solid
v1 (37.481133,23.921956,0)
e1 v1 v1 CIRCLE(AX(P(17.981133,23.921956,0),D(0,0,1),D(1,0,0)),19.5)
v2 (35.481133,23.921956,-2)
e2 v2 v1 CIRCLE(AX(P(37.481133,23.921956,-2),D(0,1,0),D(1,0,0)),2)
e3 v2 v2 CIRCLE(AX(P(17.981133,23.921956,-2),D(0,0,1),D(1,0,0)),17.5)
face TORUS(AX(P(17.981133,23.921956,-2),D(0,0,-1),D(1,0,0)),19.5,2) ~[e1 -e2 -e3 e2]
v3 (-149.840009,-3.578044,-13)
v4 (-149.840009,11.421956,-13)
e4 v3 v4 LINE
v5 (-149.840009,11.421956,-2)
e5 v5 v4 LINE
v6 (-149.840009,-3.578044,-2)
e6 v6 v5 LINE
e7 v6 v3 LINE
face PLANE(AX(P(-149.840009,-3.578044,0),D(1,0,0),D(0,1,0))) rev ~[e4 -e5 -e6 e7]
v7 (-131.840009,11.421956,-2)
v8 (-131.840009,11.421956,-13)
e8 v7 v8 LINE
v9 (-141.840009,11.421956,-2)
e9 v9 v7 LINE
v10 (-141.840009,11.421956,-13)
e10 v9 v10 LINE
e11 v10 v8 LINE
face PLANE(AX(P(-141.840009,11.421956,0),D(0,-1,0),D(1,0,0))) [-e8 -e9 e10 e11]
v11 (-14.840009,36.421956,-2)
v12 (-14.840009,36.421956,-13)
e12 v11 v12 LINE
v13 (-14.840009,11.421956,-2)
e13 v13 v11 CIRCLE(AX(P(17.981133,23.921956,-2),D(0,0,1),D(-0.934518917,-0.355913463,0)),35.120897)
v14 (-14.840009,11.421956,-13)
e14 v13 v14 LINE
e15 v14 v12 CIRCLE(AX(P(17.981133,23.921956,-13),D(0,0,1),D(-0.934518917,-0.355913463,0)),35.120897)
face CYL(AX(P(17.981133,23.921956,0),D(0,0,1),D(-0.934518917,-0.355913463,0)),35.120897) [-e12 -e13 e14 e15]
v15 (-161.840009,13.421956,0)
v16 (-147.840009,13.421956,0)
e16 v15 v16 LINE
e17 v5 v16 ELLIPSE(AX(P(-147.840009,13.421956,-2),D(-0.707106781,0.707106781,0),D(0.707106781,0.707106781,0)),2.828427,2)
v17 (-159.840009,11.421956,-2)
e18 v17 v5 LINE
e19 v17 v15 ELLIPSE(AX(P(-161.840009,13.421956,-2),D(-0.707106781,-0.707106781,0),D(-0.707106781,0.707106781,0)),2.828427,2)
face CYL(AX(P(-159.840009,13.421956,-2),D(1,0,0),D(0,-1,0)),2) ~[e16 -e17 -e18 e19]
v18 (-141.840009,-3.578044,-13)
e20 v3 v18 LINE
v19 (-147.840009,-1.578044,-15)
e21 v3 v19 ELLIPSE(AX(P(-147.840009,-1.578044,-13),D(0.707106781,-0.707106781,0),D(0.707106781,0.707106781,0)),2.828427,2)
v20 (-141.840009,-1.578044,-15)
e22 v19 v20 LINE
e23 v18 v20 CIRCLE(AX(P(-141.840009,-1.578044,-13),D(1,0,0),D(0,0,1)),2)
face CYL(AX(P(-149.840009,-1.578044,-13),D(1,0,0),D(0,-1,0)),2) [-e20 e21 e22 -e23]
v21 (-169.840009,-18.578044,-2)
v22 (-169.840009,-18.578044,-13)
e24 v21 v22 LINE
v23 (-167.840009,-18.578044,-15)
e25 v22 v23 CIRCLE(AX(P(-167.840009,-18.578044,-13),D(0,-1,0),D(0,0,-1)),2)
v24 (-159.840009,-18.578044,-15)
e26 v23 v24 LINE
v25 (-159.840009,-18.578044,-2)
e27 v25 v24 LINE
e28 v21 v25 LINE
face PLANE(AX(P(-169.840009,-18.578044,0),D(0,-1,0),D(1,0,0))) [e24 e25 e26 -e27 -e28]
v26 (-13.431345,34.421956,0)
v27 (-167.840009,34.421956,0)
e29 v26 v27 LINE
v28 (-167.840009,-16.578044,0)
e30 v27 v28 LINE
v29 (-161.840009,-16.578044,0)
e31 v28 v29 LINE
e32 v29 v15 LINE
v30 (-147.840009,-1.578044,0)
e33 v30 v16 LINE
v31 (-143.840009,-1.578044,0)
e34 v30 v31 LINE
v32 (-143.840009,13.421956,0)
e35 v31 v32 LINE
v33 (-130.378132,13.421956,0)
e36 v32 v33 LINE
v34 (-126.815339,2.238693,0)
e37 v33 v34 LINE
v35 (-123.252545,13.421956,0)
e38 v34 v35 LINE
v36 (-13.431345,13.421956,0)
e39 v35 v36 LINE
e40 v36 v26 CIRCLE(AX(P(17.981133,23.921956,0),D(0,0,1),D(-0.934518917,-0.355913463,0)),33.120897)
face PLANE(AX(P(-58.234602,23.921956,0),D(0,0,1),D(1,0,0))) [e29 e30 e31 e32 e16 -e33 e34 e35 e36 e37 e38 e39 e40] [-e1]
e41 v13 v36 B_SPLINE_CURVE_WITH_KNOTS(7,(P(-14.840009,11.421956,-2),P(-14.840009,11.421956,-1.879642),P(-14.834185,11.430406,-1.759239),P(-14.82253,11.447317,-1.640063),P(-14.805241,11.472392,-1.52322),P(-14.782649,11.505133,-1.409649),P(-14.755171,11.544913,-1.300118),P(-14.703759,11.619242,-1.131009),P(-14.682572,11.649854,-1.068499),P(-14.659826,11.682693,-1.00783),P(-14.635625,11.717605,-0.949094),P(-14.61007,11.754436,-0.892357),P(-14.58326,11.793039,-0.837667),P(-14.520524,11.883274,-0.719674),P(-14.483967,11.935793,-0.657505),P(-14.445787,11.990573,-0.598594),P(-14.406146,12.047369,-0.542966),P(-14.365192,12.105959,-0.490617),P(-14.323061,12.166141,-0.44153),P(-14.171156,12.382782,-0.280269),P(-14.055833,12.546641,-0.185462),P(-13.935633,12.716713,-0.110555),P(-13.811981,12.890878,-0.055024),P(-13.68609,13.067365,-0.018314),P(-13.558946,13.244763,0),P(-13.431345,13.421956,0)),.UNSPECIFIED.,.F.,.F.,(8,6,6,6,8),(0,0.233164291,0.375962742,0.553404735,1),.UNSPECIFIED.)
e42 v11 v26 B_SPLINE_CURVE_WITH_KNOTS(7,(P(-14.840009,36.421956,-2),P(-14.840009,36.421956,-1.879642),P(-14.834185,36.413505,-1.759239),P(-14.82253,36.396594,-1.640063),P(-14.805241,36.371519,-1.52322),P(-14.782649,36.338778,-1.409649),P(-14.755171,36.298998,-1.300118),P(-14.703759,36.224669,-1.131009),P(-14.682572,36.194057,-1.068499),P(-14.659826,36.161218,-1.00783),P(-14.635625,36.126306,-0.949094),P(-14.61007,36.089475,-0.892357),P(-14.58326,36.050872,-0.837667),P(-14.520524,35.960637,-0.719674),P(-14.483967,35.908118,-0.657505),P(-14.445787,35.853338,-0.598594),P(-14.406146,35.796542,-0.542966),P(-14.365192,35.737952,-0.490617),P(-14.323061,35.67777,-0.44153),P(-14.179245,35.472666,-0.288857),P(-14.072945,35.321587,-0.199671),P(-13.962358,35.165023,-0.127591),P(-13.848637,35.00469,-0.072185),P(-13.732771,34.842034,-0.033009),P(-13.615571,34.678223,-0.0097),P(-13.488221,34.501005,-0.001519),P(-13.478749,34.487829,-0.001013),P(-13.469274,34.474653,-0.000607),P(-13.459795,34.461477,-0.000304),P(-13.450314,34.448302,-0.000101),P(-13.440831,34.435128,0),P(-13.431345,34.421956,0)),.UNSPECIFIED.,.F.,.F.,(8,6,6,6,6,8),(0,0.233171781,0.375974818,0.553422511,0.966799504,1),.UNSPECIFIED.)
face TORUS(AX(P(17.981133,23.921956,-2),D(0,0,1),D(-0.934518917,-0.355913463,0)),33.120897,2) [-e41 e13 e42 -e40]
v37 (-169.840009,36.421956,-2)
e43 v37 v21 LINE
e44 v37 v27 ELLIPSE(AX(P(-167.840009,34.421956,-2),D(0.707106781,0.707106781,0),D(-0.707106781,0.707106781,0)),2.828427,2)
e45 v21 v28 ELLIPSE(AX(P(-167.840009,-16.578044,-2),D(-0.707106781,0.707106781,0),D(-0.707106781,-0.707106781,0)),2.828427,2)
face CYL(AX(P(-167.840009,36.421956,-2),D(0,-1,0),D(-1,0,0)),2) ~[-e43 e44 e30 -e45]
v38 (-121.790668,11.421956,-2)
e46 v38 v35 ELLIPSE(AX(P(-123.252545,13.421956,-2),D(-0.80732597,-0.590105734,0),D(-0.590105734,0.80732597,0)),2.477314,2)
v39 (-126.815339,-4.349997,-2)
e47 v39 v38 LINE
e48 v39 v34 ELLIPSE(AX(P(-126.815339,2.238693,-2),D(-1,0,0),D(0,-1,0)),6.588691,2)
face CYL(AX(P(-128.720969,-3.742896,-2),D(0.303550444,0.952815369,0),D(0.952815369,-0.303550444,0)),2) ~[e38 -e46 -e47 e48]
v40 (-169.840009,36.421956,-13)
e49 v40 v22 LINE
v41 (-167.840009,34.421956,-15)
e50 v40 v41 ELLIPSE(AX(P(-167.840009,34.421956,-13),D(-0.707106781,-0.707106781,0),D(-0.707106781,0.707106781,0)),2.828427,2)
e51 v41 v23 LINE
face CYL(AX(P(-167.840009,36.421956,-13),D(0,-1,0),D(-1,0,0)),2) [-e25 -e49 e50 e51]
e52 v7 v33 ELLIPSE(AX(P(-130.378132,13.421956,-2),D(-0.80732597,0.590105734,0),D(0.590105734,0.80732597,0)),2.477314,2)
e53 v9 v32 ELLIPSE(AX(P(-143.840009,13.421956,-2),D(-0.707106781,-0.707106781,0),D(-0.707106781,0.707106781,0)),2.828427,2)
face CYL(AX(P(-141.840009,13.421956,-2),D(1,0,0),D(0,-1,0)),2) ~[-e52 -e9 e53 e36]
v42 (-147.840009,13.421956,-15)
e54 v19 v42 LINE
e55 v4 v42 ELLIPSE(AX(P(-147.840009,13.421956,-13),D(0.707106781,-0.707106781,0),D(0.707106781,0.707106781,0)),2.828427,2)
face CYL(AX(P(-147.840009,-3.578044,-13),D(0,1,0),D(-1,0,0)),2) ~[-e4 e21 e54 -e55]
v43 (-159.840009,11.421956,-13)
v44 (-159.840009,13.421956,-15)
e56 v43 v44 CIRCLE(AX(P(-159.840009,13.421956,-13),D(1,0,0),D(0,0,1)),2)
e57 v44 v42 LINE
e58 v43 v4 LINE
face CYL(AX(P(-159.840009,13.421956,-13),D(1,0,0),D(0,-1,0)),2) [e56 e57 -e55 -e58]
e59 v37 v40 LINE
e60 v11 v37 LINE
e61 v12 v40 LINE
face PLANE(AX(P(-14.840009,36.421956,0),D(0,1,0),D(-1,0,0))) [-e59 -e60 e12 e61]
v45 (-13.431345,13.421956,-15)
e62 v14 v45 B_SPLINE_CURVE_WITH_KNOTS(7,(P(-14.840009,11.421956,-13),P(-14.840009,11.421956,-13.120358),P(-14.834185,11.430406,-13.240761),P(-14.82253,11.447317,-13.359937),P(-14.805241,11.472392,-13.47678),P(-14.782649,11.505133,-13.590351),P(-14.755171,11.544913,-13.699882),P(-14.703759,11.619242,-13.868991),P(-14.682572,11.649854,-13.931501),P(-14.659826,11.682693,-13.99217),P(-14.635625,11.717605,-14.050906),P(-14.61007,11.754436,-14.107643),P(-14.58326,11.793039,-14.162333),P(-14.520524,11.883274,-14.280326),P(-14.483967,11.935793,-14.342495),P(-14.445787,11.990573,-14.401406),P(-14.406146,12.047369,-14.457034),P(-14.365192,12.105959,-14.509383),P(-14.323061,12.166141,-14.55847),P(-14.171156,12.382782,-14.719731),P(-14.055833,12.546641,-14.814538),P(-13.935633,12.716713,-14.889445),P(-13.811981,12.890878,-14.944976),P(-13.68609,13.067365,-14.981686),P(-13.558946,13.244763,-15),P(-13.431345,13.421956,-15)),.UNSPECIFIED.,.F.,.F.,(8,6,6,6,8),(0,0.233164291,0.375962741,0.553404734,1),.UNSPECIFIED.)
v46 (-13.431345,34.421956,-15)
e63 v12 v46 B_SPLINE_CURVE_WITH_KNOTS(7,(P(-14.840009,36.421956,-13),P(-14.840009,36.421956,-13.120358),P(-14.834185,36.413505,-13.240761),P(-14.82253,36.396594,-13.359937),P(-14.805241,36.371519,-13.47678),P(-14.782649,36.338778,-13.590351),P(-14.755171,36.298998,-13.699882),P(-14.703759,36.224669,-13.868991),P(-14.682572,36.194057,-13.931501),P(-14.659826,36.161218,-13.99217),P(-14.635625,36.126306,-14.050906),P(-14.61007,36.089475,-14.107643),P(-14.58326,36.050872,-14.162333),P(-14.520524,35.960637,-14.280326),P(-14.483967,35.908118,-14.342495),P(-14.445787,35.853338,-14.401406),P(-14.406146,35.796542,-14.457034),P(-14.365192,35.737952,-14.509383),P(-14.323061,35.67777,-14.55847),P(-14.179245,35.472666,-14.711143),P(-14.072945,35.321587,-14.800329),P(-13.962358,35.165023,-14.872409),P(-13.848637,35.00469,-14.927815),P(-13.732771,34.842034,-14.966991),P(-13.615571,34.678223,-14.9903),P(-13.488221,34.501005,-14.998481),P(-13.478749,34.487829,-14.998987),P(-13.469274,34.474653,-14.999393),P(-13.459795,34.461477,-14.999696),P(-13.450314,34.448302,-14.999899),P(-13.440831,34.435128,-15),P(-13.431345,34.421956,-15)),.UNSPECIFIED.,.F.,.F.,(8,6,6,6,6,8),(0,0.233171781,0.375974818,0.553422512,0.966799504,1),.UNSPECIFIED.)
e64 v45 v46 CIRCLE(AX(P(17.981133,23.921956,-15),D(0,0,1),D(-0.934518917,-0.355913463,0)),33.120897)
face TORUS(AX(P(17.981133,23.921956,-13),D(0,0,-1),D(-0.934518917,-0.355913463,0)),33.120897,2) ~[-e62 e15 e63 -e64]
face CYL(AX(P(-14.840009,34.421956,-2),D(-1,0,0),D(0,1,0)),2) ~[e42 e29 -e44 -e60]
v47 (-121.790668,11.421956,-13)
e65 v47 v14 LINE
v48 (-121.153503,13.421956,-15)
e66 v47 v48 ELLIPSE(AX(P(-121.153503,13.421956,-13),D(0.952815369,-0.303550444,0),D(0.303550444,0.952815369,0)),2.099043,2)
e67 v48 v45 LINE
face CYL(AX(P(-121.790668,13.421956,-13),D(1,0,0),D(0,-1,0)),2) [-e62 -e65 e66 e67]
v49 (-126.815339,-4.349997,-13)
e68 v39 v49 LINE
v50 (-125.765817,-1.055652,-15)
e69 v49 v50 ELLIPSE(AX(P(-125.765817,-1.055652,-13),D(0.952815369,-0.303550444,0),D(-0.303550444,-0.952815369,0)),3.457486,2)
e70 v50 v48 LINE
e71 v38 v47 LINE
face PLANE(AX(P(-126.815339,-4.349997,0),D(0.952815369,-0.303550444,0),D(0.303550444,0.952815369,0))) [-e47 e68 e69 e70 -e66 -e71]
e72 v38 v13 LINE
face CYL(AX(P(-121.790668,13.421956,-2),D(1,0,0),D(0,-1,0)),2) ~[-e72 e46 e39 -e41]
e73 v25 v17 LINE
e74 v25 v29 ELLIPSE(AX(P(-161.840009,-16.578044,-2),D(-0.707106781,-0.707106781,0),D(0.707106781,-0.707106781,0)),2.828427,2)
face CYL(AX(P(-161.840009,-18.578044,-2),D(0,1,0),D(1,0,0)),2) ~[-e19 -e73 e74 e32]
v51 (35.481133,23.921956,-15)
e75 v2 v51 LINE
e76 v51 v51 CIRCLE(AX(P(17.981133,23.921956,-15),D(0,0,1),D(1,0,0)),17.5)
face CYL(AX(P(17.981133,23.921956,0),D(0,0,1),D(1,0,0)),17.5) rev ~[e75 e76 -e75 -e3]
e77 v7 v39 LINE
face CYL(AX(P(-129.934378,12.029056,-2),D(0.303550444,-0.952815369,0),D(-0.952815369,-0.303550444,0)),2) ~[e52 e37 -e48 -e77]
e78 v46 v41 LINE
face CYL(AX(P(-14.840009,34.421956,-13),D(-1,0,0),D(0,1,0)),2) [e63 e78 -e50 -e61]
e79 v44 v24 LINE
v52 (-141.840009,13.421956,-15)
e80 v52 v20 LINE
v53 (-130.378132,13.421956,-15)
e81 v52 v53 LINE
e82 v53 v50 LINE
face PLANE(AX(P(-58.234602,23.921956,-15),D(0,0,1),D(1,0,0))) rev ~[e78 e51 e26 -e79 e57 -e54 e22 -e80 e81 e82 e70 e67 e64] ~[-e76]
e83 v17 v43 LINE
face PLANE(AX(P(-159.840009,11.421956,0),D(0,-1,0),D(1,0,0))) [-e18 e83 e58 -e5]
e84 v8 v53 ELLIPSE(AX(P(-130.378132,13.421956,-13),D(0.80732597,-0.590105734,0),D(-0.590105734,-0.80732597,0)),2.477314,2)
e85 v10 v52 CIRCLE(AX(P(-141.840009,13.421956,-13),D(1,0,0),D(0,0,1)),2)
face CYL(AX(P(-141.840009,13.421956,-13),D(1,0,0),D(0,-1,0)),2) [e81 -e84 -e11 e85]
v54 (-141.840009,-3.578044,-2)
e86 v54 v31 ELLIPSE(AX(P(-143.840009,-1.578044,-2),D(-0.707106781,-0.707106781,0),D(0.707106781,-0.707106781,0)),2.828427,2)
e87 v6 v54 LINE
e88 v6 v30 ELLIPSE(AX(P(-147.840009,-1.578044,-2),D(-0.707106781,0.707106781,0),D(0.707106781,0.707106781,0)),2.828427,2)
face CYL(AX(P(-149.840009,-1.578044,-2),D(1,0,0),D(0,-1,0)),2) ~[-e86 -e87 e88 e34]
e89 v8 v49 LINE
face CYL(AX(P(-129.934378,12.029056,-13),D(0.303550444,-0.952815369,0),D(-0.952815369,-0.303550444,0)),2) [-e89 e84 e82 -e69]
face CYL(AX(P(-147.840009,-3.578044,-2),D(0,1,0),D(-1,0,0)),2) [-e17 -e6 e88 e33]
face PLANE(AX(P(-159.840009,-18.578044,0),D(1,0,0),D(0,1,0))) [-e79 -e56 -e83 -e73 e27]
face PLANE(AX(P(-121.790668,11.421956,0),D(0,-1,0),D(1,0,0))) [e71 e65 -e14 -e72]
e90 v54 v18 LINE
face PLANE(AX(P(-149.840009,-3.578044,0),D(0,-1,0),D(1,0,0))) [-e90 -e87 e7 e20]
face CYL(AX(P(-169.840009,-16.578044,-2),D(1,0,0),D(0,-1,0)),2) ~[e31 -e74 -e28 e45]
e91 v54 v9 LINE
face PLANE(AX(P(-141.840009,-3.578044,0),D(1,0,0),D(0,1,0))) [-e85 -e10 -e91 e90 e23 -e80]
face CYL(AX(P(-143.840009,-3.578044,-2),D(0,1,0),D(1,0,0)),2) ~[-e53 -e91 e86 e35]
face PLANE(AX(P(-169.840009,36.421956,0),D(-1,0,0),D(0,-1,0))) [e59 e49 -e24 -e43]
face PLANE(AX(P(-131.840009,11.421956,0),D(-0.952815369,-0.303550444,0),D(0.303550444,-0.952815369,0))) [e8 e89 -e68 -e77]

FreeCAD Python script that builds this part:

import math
import FreeCAD as App
import Part
import Sketcher


def edges_at(feature, points):
    """Names of the edges that pass closest to the given points."""
    edges = feature.Shape.Edges
    near = lambda p: min(range(len(edges)), key=lambda i: edges[i].distToShape(Part.Vertex(*p))[0])
    return sorted({f"Edge{near(p) + 1}" for p in points})

doc = App.newDocument("Part")
body = doc.addObject("PartDesign::Body", "Body")

# Sketch on XY plane
sketch1 = doc.addObject("Sketcher::SketchObject", "Sketch")
body.addObject(sketch1)
sketch1.AttachmentSupport = (doc.XY_Plane, [""])
sketch1.MapMode = "FlatFace"
sketch1.addGeometry([
    Part.ArcOfCircle(Part.Circle(App.Vector(18, 24, 0), App.Vector(0, 0, 1), 35), math.radians(-159), math.radians(159)),  # 0
    Part.LineSegment(App.Vector(-15, 36, 0), App.Vector(-170, 36, 0)),  # 1
    Part.LineSegment(App.Vector(-170, 36, 0), App.Vector(-170, -19, 0)),  # 2
    Part.LineSegment(App.Vector(-170, -19, 0), App.Vector(-160, -19, 0)),  # 3
    Part.LineSegment(App.Vector(-160, -19, 0), App.Vector(-160, 11, 0)),  # 4
    Part.LineSegment(App.Vector(-160, 11, 0), App.Vector(-150, 11, 0)),  # 5
    Part.LineSegment(App.Vector(-150, 11, 0), App.Vector(-150, -4, 0)),  # 6
    Part.LineSegment(App.Vector(-150, -4, 0), App.Vector(-142, -4, 0)),  # 7
    Part.LineSegment(App.Vector(-142, -4, 0), App.Vector(-142, 11, 0)),  # 8
    Part.LineSegment(App.Vector(-142, 11, 0), App.Vector(-132, 11, 0)),  # 9
    Part.LineSegment(App.Vector(-132, 11, 0), App.Vector(-127, -4, 0)),  # 10
    Part.LineSegment(App.Vector(-127, -4, 0), App.Vector(-122, 11, 0)),  # 11
    Part.LineSegment(App.Vector(-122, 11, 0), App.Vector(-15, 11, 0)),  # 12
    Part.Circle(App.Vector(18, 24, 0), App.Vector(0, 0, 1), 18),  # 13
], False)
sketch1.addConstraint([
    Sketcher.Constraint("Coincident", 0, 2, 1, 1),
    Sketcher.Constraint("Coincident", 1, 2, 2, 1),
    Sketcher.Constraint("Coincident", 2, 2, 3, 1),
    Sketcher.Constraint("Coincident", 3, 2, 4, 1),
    Sketcher.Constraint("Coincident", 4, 2, 5, 1),
    Sketcher.Constraint("Coincident", 5, 2, 6, 1),
    Sketcher.Constraint("Coincident", 6, 2, 7, 1),
    Sketcher.Constraint("Coincident", 7, 2, 8, 1),
    Sketcher.Constraint("Coincident", 8, 2, 9, 1),
    Sketcher.Constraint("Coincident", 9, 2, 10, 1),
    Sketcher.Constraint("Coincident", 10, 2, 11, 1),
    Sketcher.Constraint("Coincident", 11, 2, 12, 1),
    Sketcher.Constraint("Coincident", 12, 2, 0, 1),
    Sketcher.Constraint("Horizontal", 1),
    Sketcher.Constraint("Vertical", 2),
    Sketcher.Constraint("Horizontal", 3),
    Sketcher.Constraint("Vertical", 4),
    Sketcher.Constraint("Horizontal", 5),
    Sketcher.Constraint("Vertical", 6),
    Sketcher.Constraint("Horizontal", 7),
    Sketcher.Constraint("Vertical", 8),
    Sketcher.Constraint("Horizontal", 9),
    Sketcher.Constraint("Horizontal", 12),
    Sketcher.Constraint("Coincident", 13, 3, 0, 3),
    Sketcher.Constraint("Horizontal", 5, 2, 8, 2),
    Sketcher.Constraint("Horizontal", 9, 2, 11, 2),
    Sketcher.Constraint("Vertical", 0, 2, 12, 2),
    Sketcher.Constraint("Equal", 3, 5),
    Sketcher.Constraint("Equal", 5, 9),
    Sketcher.Constraint("Equal", 10, 11),
    Sketcher.Constraint("Diameter", 13, 35.0),
    Sketcher.Constraint("DistanceX", 1, 2, 1, 1, 155.0),
    Sketcher.Constraint("DistanceX", 3, 1, 3, 2, 10.0),
    Sketcher.Constraint("DistanceX", 7, 1, 7, 2, 8.0),
    Sketcher.Constraint("DistanceY", 2, 2, 2, 1, 55.0),
    Sketcher.Constraint("DistanceY", 4, 1, 4, 2, 30.0),
    Sketcher.Constraint("DistanceY", 6, 2, 6, 1, 15.0),
    Sketcher.Constraint("Distance", 10, 16.553),
    Sketcher.Constraint("Radius", 0, 35.120897),
    Sketcher.Constraint("DistanceX", 12, 1, 12, 2, 106.950659),
    Sketcher.Constraint("DistanceX", 0, 2, -1, 1, 14.840009),
    Sketcher.Constraint("DistanceY", -1, 1, 0, 3, 23.921956),
])
pad1 = doc.addObject("PartDesign::Pad", "Pad")
body.addObject(pad1)
pad1.Profile = sketch1
pad1.Length = 15
pad1.Reversed = True
doc.recompute()

fillet = doc.addObject("PartDesign::Fillet", "Fillet")
body.addObject(fillet)
fillet.Base = (pad1, edges_at(pad1, [
    (-92.34, 36.422, 0),
    (-169.84, 8.922, 0),
    (-164.84, -18.578, 0),
    (-159.84, -3.578, 0),
    (-154.84, 11.422, 0),
    (-149.84, 3.922, 0),
    (-145.84, -3.578, 0),
    (-141.84, 3.922, 0),
    (-136.84, 11.422, 0),
    (-129.328, 3.536, 0),
    (-124.303, 3.536, 0),
    (-68.315, 11.422, 0),
    (53.102, 23.922, 0),
    (0.481, 23.922, 0),
    (-92.34, 36.422, -15),
    (-68.315, 11.422, -15),
    (53.102, 23.922, -15),
    (-129.328, 3.536, -15),
    (-136.84, 11.422, -15),
    (-154.84, 11.422, -15),
    (-149.84, 3.922, -15),
    (-145.84, -3.578, -15),
    (-169.84, 8.922, -15),
]))
fillet.Radius = 2

doc.recompute()
